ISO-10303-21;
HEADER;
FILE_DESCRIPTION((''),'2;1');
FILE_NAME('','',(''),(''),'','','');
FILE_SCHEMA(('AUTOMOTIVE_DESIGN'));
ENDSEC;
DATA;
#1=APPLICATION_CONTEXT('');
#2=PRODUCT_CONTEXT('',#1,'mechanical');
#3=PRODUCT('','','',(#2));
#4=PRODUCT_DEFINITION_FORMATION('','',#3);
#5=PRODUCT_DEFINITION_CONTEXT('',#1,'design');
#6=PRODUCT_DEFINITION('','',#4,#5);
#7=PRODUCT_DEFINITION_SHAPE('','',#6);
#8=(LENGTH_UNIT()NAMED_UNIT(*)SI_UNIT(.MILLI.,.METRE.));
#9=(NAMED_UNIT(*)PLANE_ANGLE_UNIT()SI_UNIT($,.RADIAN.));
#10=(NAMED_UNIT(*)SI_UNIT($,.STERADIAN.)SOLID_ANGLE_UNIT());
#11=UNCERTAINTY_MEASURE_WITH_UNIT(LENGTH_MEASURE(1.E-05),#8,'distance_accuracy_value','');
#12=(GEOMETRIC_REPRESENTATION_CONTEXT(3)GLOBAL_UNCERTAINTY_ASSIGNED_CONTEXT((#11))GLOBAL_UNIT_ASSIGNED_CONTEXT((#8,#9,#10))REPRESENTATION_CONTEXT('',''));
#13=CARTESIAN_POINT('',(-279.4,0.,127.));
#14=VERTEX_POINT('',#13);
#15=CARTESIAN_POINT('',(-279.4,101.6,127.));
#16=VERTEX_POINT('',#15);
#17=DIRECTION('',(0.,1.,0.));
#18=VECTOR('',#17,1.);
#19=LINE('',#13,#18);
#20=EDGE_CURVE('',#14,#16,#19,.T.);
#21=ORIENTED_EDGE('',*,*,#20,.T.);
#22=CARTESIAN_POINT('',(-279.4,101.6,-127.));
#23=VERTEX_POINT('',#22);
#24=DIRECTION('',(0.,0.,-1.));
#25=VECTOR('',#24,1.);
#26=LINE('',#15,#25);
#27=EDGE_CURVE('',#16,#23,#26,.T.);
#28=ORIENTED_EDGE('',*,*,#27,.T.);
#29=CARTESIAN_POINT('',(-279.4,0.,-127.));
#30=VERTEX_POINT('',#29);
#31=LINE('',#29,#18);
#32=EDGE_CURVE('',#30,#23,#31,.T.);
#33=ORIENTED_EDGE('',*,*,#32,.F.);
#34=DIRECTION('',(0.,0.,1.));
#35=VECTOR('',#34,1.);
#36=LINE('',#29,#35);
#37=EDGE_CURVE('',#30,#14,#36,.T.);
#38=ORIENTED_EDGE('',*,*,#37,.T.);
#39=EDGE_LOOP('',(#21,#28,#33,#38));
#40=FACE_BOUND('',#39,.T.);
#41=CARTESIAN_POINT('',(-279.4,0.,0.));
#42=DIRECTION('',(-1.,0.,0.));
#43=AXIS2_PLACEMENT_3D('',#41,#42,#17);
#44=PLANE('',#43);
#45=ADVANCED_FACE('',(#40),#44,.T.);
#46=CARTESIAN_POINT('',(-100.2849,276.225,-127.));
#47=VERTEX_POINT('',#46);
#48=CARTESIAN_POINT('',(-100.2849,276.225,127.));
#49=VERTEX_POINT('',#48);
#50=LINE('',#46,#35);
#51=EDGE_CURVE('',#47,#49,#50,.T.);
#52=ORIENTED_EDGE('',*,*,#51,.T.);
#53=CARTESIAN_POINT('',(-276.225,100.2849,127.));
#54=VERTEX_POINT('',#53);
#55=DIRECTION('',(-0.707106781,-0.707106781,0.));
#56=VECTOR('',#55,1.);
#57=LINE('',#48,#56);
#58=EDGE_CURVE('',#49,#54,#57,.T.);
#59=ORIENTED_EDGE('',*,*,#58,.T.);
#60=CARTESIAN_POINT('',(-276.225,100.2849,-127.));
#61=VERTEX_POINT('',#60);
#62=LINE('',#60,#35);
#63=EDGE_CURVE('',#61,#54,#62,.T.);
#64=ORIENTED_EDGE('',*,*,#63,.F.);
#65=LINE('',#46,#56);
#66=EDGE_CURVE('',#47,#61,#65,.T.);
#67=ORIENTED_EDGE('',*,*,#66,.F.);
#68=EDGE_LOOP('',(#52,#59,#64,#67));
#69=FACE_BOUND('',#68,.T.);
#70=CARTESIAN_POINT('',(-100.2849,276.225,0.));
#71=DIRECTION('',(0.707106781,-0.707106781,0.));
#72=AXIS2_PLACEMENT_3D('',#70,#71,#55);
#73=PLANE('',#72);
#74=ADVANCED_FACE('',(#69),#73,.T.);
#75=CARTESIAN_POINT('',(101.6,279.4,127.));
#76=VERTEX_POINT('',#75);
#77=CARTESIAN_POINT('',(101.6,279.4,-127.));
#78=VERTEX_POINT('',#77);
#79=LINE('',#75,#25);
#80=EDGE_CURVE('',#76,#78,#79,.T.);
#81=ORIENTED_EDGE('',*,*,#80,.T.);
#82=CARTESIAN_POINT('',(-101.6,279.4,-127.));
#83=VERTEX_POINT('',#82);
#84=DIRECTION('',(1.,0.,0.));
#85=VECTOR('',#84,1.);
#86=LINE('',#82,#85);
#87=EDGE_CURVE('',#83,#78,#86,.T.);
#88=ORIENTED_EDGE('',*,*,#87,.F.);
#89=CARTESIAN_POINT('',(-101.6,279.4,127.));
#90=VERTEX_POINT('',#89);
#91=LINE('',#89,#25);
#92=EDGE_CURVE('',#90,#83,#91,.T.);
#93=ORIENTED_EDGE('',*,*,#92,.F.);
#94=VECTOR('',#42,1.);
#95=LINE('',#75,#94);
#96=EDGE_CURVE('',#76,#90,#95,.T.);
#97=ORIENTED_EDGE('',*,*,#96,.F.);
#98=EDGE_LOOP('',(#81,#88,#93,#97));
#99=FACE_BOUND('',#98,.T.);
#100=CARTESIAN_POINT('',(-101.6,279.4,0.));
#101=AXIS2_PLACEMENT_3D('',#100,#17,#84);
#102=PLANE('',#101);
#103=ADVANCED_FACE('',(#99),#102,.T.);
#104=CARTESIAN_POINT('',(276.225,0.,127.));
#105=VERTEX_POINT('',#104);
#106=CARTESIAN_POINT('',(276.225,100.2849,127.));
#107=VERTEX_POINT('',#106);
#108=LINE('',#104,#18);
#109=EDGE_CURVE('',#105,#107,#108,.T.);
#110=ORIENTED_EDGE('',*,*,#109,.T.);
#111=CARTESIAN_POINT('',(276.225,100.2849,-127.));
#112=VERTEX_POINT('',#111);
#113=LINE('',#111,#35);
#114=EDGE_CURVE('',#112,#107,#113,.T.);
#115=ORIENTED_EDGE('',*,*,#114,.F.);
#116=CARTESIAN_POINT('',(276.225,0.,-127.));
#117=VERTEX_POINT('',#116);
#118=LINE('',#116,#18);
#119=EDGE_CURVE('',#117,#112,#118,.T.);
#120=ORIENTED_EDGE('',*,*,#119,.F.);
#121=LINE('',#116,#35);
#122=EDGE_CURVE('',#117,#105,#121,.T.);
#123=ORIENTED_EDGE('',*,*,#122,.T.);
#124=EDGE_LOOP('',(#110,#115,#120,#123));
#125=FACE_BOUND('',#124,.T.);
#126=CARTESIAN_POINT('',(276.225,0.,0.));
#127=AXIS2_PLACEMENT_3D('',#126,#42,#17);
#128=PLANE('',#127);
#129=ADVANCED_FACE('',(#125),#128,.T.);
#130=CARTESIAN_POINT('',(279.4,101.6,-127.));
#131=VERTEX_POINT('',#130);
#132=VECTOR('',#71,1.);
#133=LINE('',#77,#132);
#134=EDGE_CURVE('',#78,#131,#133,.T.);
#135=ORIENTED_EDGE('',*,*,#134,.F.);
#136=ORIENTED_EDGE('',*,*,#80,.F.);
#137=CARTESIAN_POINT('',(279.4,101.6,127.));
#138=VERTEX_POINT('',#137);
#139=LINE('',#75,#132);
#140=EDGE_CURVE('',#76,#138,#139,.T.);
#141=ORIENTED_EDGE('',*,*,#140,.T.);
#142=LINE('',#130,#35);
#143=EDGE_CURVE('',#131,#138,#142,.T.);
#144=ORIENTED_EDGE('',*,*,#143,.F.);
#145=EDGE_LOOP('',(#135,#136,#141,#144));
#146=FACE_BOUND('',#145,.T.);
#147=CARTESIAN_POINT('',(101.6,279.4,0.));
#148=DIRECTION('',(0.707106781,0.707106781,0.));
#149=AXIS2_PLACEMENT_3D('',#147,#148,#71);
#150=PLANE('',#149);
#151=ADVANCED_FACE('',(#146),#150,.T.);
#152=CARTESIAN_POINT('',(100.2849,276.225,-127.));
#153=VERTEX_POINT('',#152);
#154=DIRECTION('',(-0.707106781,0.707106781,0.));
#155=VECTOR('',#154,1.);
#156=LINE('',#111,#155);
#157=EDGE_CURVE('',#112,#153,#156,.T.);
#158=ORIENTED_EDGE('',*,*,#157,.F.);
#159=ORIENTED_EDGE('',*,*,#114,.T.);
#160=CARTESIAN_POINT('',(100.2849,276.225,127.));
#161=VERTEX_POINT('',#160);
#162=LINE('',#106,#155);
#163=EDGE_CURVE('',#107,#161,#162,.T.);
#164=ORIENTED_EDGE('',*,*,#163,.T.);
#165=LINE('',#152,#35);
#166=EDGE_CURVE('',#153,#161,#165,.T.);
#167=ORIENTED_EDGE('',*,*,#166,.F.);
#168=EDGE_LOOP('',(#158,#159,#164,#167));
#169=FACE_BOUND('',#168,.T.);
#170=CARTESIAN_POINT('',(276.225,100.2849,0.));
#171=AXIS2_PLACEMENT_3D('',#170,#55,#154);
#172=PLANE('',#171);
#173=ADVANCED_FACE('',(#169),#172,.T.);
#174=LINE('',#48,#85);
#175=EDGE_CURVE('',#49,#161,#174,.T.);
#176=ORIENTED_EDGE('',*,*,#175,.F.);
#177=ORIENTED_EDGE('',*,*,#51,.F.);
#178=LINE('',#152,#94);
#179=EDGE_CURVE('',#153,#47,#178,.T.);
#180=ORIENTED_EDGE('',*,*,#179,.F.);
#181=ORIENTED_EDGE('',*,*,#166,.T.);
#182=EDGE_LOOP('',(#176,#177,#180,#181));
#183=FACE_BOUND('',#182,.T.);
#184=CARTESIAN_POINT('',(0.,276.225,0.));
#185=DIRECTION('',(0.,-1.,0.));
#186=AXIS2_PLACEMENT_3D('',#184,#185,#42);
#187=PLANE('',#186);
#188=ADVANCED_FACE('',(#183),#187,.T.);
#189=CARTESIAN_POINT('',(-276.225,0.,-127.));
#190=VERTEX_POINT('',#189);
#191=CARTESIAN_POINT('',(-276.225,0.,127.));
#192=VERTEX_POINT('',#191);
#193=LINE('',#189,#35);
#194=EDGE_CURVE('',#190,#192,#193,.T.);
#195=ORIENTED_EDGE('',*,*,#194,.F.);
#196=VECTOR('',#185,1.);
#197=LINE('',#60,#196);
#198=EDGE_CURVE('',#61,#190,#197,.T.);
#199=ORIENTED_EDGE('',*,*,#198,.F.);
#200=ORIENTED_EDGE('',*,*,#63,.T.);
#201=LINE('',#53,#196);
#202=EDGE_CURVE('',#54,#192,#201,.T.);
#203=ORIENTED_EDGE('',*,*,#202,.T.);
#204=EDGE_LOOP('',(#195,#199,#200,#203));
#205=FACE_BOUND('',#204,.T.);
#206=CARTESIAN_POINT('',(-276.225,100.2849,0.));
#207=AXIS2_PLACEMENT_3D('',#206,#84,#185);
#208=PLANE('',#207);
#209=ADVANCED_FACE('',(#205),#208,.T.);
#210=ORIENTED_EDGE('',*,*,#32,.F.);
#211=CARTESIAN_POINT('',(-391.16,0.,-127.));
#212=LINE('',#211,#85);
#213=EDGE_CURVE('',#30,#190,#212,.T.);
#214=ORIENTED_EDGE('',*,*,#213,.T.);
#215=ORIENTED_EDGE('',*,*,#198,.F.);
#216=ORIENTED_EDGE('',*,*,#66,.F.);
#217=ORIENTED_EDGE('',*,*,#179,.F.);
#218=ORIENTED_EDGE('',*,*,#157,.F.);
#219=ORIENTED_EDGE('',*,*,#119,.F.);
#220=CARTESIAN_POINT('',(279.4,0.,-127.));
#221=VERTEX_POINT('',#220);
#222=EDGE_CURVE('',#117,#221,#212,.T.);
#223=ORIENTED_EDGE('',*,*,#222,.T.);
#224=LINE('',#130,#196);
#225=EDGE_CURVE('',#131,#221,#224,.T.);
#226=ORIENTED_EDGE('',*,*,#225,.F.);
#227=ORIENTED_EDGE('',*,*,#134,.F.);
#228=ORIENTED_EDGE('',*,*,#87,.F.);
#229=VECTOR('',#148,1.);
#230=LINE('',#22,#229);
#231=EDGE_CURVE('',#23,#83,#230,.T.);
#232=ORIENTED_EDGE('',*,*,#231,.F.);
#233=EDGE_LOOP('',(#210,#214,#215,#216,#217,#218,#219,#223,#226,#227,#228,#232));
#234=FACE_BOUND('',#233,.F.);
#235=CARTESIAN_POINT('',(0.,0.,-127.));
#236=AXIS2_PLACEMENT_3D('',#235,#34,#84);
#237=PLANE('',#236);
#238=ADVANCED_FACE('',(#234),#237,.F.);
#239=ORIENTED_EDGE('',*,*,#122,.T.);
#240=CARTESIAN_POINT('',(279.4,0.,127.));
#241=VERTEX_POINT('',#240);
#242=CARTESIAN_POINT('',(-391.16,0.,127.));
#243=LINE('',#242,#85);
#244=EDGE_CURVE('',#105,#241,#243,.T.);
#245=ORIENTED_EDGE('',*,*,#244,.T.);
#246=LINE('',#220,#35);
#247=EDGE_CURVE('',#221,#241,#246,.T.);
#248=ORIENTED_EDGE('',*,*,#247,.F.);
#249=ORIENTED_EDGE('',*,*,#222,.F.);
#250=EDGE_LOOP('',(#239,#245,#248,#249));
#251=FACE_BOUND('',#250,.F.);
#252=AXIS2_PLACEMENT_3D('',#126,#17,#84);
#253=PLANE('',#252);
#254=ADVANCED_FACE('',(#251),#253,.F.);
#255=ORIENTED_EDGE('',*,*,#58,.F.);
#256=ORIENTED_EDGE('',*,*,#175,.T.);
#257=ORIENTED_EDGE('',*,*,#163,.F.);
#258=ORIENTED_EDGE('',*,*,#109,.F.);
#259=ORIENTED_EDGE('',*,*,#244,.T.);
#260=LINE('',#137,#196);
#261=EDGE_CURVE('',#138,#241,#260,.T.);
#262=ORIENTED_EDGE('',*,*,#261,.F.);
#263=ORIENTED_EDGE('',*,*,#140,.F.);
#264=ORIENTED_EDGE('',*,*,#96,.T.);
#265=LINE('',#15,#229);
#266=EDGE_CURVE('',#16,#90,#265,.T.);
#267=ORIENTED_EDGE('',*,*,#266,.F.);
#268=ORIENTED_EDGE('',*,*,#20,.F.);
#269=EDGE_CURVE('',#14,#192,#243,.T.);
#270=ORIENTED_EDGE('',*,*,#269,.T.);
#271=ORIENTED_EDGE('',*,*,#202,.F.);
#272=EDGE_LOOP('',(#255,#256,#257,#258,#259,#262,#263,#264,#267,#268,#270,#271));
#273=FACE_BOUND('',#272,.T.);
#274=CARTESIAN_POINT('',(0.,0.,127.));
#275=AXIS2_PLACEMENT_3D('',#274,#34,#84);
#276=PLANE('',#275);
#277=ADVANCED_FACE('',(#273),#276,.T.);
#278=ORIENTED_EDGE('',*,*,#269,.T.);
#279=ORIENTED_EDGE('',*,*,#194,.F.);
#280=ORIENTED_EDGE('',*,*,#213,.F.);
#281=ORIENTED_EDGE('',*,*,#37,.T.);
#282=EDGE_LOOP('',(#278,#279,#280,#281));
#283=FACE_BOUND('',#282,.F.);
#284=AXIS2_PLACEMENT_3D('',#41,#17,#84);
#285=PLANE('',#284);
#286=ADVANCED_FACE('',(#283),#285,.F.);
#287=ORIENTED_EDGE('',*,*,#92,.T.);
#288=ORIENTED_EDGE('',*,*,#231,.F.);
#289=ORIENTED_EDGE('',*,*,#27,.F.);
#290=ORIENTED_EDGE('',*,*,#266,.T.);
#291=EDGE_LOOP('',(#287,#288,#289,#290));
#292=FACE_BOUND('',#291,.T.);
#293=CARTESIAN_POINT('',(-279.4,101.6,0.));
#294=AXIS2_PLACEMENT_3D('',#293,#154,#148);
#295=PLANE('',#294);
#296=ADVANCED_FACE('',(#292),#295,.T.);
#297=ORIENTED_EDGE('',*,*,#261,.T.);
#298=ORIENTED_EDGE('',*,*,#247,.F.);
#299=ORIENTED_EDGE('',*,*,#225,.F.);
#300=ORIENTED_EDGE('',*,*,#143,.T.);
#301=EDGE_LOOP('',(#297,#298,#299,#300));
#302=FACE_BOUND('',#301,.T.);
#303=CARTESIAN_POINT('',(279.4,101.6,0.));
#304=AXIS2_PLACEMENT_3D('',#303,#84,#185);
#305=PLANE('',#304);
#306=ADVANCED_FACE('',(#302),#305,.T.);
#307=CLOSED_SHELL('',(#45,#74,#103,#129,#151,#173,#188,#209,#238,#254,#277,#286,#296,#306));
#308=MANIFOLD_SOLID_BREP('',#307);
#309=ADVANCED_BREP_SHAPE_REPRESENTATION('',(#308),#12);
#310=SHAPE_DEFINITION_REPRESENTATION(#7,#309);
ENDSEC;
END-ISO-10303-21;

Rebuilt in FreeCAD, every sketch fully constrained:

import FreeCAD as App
import Part
import Sketcher

V = App.Vector
Q = App.Units.Quantity

doc = App.newDocument("Part")
body = doc.addObject("PartDesign::Body", "Body")

# Sketch on XY plane
sketch1 = body.newObject("Sketcher::SketchObject", "Sketch")
sketch1.AttachmentSupport = (doc.getObject("XY_Plane"), [""])
sketch1.MapMode = "FlatFace"
sketch1.addGeometry([
    Part.LineSegment(V(-279.4, 101.6, 0), V(-279.4, 0, 0)),  # 0
    Part.LineSegment(V(-279.4, 0, 0), V(-276.2, 0, 0)),  # 1
    Part.LineSegment(V(-276.2, 0, 0), V(-276.2, 100.3, 0)),  # 2
    Part.LineSegment(V(-276.2, 100.3, 0), V(-100.3, 276.2, 0)),  # 3
    Part.LineSegment(V(-100.3, 276.2, 0), V(100.3, 276.2, 0)),  # 4
    Part.LineSegment(V(100.3, 276.2, 0), V(276.2, 100.3, 0)),  # 5
    Part.LineSegment(V(276.2, 100.3, 0), V(276.2, 0, 0)),  # 6
    Part.LineSegment(V(276.2, 0, 0), V(279.4, 0, 0)),  # 7
    Part.LineSegment(V(279.4, 0, 0), V(279.4, 101.6, 0)),  # 8
    Part.LineSegment(V(279.4, 101.6, 0), V(101.6, 279.4, 0)),  # 9
    Part.LineSegment(V(101.6, 279.4, 0), V(-101.6, 279.4, 0)),  # 10
    Part.LineSegment(V(-101.6, 279.4, 0), V(-279.4, 101.6, 0)),  # 11
], False)
sketch1.addConstraint([
    Sketcher.Constraint("Coincident", 0, 2, 1, 1),
    Sketcher.Constraint("Coincident", 1, 2, 2, 1),
    Sketcher.Constraint("Coincident", 2, 2, 3, 1),
    Sketcher.Constraint("Coincident", 3, 2, 4, 1),
    Sketcher.Constraint("Coincident", 4, 2, 5, 1),
    Sketcher.Constraint("Coincident", 5, 2, 6, 1),
    Sketcher.Constraint("Coincident", 6, 2, 7, 1),
    Sketcher.Constraint("Coincident", 7, 2, 8, 1),
    Sketcher.Constraint("Coincident", 8, 2, 9, 1),
    Sketcher.Constraint("Coincident", 9, 2, 10, 1),
    Sketcher.Constraint("Coincident", 10, 2, 11, 1),
    Sketcher.Constraint("Coincident", 11, 2, 0, 1),
    Sketcher.Constraint("Vertical", 0),
    Sketcher.Constraint("Horizontal", 1),
    Sketcher.Constraint("Vertical", 2),
    Sketcher.Constraint("Horizontal", 4),
    Sketcher.Constraint("Vertical", 6),
    Sketcher.Constraint("Horizontal", 7),
    Sketcher.Constraint("Vertical", 8),
    Sketcher.Constraint("Horizontal", 10),
    Sketcher.Constraint("Symmetric", 1, 2, 6, 2, -1, 1),
    Sketcher.Constraint("Symmetric", 0, 2, 7, 2, -2),
    Sketcher.Constraint("Perpendicular", 3, 5),
    Sketcher.Constraint("Parallel", 5, 9),
    Sketcher.Constraint("Perpendicular", 9, 11),
    Sketcher.Constraint("Horizontal", 2, 2, 5, 2),
    Sketcher.Constraint("Horizontal", 8, 2, 11, 2),
    Sketcher.Constraint("Equal", 3, 5),
    Sketcher.Constraint("DistanceX", 10, 2, 10, 1, Q("8 in")),
    Sketcher.Constraint("DistanceY", 0, 2, 0, 1, Q("4 in")),
    Sketcher.Constraint("DistanceX", 1, 1, 1, 2, Q("0.125 in")),
    Sketcher.Constraint("DistanceX", 0, 2, -1, 1, Q("11 in")),
    Sketcher.Constraint("DistanceY", 4, 2, 9, 2, Q("0.125 in")),
    Sketcher.Constraint("DistanceX", 4, 1, 4, 2, 200.5698),
])
pad1 = body.newObject("PartDesign::Pad", "Pad")
pad1.Profile = sketch1
pad1.Length = Q("10 in")
pad1.Midplane = True

doc.recompute()
